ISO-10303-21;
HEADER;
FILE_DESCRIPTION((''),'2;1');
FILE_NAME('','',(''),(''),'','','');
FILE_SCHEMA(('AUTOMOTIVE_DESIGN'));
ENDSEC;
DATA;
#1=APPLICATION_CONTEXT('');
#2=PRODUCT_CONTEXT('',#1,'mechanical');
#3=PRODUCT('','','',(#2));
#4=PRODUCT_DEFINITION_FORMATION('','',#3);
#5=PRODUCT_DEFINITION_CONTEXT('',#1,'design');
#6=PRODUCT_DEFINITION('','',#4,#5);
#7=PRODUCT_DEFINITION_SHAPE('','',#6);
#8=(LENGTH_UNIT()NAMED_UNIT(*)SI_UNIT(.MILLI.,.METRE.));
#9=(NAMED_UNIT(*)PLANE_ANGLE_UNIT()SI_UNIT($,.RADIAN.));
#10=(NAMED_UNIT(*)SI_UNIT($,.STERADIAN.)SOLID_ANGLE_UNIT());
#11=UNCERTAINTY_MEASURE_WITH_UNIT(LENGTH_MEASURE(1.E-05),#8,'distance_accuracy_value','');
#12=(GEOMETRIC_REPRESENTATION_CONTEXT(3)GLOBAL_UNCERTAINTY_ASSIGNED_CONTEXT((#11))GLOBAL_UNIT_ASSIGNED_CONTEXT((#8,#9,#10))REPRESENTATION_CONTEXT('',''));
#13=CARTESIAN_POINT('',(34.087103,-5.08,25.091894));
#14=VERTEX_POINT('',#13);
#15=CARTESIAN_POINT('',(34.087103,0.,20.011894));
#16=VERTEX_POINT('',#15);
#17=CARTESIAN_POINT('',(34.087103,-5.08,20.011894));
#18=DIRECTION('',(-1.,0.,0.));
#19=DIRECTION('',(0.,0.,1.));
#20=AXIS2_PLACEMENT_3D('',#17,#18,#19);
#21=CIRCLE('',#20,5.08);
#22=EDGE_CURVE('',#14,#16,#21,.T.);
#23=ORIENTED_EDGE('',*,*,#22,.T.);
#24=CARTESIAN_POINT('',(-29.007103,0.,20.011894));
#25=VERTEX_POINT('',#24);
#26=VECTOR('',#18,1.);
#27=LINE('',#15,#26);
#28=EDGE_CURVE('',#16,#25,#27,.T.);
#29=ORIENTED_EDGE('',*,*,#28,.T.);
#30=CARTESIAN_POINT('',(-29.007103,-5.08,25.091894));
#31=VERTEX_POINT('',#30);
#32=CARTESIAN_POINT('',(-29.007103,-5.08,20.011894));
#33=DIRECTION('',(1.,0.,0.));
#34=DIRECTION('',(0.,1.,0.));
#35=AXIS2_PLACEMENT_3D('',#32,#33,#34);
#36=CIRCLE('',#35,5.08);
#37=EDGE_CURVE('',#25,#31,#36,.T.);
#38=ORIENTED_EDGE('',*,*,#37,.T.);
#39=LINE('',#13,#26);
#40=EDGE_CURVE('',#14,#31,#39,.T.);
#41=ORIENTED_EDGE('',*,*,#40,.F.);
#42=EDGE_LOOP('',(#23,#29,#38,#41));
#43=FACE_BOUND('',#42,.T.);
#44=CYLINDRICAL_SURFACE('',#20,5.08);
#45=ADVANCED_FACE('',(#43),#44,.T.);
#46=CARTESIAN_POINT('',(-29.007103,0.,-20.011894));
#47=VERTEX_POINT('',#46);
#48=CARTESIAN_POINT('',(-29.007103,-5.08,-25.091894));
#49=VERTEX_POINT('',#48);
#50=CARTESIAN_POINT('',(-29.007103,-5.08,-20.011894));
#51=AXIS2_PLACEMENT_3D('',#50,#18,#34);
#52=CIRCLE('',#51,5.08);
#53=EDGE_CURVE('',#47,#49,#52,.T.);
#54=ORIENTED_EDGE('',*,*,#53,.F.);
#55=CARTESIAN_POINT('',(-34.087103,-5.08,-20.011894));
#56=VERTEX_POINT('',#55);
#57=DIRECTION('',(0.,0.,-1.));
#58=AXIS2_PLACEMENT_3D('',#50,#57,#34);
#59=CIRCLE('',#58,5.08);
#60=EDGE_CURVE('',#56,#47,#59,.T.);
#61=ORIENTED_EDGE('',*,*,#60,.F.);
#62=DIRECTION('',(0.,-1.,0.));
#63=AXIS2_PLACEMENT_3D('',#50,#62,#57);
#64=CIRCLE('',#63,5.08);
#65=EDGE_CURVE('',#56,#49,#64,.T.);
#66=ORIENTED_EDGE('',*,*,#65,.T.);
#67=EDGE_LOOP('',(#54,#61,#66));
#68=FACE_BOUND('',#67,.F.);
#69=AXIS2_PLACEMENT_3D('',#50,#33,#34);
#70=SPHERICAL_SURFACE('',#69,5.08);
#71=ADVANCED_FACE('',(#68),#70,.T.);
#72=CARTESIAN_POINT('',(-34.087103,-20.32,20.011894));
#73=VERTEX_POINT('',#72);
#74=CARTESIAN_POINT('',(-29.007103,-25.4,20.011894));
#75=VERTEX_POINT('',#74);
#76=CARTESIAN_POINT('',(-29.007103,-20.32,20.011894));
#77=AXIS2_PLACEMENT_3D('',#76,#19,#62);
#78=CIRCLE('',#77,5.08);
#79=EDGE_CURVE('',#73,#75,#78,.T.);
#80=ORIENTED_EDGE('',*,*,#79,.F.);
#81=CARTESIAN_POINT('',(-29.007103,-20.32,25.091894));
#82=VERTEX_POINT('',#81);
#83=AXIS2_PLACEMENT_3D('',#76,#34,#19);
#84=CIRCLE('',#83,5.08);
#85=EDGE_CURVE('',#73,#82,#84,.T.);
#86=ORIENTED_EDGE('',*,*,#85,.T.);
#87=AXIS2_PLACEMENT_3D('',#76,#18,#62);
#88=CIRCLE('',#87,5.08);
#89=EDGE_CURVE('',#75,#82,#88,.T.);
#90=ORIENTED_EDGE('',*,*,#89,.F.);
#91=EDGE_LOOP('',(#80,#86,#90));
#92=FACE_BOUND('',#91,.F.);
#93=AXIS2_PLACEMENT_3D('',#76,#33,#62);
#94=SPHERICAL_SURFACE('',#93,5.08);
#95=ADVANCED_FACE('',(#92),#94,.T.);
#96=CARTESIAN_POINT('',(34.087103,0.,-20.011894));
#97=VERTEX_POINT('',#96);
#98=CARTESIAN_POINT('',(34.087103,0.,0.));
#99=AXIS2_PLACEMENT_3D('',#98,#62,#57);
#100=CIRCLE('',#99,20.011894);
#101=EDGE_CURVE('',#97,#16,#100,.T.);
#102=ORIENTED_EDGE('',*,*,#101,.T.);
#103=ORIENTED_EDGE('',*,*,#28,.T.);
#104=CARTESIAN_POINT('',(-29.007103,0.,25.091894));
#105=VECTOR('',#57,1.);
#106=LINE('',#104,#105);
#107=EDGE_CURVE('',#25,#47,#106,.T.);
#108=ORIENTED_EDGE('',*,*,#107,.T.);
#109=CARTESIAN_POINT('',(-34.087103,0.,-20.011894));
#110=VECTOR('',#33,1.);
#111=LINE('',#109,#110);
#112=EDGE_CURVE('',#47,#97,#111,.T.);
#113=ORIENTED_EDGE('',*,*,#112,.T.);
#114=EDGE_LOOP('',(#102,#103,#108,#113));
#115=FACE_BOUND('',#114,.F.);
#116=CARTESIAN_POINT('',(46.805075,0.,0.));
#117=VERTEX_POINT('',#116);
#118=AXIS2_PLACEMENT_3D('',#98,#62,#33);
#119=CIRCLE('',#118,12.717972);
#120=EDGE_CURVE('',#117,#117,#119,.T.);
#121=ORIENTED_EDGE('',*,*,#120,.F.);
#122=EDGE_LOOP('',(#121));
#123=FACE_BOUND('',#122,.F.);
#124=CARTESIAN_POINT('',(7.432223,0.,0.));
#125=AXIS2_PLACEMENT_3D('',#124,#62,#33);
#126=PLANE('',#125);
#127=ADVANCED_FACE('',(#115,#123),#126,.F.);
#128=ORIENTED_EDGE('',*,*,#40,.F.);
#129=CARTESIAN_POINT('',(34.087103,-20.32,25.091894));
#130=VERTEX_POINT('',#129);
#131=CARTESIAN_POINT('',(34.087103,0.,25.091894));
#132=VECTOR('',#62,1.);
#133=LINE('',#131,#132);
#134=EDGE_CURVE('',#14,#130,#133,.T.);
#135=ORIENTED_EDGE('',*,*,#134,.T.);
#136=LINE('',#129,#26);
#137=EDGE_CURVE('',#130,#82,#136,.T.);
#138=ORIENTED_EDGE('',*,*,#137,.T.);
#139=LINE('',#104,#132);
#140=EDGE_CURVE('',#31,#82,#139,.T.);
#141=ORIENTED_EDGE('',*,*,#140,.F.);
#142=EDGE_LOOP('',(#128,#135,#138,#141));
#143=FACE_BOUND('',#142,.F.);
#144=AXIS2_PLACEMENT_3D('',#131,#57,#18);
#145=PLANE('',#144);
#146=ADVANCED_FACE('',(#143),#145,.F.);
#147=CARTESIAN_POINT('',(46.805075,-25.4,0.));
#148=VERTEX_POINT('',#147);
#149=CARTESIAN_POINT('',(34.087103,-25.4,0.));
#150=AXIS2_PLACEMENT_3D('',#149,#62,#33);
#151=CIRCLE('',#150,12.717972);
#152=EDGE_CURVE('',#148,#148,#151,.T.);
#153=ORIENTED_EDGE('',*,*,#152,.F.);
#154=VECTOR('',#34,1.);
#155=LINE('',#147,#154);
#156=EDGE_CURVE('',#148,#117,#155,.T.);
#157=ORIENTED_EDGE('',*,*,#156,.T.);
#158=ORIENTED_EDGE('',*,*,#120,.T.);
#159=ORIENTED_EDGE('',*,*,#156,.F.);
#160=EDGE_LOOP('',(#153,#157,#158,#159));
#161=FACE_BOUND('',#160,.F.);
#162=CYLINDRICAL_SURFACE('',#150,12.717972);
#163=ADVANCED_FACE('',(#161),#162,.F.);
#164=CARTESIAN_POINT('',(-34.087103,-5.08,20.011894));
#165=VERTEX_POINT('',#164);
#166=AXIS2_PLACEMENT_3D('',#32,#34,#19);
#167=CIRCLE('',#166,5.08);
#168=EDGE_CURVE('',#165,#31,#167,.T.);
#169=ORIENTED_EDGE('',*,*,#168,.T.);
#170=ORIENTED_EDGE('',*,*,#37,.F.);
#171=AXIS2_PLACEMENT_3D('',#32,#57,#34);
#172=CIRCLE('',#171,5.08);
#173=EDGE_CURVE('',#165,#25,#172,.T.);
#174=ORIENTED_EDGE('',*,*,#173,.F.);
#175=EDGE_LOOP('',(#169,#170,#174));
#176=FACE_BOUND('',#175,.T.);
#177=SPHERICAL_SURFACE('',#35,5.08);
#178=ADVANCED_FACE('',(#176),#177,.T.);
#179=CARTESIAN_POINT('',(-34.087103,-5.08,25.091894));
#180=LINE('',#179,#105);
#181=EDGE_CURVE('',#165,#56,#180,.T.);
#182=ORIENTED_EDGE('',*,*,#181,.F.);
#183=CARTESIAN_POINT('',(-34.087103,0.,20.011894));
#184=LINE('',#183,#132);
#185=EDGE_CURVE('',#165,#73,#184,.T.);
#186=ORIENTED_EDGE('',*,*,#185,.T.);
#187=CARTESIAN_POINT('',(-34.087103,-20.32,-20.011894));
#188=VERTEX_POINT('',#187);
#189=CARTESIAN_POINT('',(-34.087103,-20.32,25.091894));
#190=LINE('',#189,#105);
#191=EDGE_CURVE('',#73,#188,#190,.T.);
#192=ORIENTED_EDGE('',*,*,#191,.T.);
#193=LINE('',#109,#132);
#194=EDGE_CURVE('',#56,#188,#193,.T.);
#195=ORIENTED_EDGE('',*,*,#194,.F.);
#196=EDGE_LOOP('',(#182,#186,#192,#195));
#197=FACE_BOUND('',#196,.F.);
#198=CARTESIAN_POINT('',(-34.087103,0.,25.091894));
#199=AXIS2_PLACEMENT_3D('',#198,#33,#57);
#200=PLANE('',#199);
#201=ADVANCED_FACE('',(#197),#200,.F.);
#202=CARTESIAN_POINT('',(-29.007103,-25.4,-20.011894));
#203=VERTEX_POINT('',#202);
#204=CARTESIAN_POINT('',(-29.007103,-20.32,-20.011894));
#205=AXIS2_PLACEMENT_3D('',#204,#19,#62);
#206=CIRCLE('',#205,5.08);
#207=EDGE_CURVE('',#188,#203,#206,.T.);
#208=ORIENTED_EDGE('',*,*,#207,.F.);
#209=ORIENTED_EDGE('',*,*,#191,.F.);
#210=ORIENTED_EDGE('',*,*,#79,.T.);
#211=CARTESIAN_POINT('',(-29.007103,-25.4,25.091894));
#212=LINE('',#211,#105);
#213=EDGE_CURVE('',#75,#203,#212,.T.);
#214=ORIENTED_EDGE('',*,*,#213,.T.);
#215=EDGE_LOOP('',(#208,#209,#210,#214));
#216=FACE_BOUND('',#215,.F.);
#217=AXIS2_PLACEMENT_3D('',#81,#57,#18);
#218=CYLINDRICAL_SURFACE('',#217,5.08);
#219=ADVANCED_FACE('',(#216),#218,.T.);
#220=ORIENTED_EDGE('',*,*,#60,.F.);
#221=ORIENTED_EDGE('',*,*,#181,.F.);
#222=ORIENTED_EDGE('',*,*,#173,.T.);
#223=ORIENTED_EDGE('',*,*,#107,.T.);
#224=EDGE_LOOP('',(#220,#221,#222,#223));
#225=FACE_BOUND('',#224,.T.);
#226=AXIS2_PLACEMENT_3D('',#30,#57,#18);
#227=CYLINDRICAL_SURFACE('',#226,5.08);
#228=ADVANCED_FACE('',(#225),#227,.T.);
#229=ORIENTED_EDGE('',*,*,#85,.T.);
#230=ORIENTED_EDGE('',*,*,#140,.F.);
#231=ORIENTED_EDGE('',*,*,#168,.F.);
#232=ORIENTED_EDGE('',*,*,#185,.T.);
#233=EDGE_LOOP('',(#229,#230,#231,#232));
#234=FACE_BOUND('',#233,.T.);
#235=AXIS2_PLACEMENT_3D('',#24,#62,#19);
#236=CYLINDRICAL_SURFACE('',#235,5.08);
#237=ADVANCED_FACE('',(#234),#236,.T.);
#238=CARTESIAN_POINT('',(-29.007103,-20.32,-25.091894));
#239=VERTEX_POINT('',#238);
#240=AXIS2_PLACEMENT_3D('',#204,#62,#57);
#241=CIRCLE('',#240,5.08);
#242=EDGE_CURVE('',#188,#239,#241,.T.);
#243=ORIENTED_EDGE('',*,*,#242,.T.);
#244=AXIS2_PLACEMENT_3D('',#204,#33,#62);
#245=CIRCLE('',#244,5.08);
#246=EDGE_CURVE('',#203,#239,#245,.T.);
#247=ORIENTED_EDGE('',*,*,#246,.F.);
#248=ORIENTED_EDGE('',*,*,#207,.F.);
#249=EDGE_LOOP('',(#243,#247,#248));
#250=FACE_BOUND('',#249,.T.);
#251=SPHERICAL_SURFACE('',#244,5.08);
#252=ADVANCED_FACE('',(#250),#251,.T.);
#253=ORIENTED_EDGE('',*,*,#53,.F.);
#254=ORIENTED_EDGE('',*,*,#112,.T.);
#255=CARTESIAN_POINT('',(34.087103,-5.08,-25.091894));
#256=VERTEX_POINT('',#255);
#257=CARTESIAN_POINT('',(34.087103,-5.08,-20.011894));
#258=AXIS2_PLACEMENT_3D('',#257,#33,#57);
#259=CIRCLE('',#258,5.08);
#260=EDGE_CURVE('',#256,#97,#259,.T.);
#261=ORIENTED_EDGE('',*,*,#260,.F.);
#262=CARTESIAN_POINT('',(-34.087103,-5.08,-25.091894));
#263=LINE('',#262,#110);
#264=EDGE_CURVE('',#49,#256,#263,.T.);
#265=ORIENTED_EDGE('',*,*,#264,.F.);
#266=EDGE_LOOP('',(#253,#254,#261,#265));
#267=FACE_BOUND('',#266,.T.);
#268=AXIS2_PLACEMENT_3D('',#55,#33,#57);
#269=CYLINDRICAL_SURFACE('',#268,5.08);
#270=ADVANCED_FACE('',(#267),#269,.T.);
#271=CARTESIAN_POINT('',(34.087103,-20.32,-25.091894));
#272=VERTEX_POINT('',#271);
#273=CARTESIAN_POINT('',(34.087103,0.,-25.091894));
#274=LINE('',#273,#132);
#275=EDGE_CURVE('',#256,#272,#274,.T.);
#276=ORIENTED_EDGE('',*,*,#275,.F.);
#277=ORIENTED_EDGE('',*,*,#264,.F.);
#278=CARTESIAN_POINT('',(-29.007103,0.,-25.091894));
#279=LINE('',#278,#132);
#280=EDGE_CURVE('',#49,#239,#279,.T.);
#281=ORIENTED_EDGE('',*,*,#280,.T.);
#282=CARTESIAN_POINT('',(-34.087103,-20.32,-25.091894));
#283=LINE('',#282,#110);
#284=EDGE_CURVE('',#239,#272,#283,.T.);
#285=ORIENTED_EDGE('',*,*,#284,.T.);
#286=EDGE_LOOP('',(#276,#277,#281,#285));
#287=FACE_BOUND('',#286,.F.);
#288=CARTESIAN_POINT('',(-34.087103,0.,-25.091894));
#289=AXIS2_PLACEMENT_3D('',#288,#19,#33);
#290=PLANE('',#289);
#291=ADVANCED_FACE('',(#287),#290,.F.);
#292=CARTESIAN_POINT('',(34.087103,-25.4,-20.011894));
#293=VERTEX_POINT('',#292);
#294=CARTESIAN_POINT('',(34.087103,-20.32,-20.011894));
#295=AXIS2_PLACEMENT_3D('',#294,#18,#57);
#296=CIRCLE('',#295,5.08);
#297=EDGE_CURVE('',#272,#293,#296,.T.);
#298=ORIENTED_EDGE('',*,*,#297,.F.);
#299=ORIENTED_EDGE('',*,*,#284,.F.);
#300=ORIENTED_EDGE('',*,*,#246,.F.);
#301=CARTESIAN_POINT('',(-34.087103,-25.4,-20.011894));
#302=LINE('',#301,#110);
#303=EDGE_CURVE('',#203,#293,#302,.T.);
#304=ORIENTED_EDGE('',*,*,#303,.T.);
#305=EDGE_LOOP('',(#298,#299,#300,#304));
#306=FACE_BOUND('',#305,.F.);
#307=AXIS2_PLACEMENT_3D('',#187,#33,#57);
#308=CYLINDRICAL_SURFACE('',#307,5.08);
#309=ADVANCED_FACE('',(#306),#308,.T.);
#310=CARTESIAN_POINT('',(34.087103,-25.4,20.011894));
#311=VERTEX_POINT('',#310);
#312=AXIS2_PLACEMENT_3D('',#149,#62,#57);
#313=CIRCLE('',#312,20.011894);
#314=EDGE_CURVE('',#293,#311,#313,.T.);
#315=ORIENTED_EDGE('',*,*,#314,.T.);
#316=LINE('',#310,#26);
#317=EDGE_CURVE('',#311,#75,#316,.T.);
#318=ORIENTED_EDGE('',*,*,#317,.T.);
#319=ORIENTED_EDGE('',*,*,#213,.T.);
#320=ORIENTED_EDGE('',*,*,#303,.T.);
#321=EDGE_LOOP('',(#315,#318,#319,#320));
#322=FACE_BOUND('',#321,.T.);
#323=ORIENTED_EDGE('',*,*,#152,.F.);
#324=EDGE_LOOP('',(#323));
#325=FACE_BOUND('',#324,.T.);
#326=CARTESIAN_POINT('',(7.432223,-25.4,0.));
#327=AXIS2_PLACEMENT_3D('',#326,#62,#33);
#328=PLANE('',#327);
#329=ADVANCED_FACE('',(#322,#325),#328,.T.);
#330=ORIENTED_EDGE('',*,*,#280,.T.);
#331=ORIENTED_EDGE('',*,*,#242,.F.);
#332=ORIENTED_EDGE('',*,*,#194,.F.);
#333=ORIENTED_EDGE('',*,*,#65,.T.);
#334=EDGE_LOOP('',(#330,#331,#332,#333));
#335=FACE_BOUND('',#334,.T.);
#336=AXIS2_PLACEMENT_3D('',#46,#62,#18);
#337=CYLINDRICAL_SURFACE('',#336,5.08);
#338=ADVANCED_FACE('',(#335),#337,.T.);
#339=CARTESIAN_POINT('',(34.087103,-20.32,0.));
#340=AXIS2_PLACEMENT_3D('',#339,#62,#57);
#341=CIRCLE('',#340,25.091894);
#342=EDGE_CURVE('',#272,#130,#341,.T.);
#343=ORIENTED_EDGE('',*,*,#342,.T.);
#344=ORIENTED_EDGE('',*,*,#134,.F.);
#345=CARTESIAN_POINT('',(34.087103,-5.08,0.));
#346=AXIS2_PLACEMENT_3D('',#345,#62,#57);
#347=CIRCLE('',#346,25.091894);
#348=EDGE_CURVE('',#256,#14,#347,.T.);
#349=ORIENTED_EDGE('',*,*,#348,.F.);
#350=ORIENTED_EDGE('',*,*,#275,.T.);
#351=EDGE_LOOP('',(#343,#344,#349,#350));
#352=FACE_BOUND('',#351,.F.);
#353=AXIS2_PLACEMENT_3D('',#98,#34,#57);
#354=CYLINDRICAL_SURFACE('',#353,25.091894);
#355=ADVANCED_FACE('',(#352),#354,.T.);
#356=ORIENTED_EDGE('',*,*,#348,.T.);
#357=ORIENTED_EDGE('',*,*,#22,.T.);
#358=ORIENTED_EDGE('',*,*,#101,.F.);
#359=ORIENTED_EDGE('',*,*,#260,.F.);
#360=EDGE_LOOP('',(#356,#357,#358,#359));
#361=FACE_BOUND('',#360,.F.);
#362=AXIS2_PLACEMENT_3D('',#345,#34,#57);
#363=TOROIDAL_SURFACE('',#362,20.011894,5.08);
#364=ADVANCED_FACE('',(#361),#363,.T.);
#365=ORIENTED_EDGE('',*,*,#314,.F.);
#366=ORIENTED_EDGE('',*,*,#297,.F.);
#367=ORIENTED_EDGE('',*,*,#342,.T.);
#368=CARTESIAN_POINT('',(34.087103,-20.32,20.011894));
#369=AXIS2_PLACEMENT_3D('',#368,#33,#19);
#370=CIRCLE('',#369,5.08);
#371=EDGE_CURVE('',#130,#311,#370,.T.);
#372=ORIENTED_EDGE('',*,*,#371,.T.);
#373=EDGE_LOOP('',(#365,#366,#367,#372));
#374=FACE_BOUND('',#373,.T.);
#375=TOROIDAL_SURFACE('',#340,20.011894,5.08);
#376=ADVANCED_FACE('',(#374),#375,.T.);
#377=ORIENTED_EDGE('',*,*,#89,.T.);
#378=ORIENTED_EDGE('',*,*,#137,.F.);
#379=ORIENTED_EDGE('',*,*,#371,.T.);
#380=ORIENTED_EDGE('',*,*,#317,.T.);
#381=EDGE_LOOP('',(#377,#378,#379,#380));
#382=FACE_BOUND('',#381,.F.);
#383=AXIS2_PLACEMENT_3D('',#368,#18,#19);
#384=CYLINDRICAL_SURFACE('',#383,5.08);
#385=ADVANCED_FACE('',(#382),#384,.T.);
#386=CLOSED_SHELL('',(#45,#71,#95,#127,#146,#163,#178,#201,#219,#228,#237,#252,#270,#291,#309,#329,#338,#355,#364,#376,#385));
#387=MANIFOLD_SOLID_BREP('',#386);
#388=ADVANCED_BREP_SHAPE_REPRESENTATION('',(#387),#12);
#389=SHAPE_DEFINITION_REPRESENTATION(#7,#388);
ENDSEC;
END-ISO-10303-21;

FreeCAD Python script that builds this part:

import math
import FreeCAD as App
import Part
import Sketcher
Q = App.Units.Quantity


def edges_at(feature, points):
    """Names of the edges that pass closest to the given points."""
    edges = feature.Shape.Edges
    near = lambda p: min(range(len(edges)), key=lambda i: edges[i].distToShape(Part.Vertex(*p))[0])
    return sorted({f"Edge{near(p) + 1}" for p in points})

doc = App.newDocument("Part")
body = doc.addObject("PartDesign::Body", "Body")

sketch1 = body.newObject("Sketcher::SketchObject", "Sketch")
sketch1.AttachmentSupport = (doc.getObject("XZ_Plane"), [""])
sketch1.MapMode = "FlatFace"
sketch1.addGeometry([
    Part.ArcOfCircle(Part.Circle(App.Vector(34, 0, 0), App.Vector(0, 0, 1), 25), math.radians(-90), math.radians(90)),
    Part.LineSegment(App.Vector(34, 25, 0), App.Vector(-34, 25, 0)),
    Part.LineSegment(App.Vector(-34, 25, 0), App.Vector(-34, -25, 0)),
    Part.LineSegment(App.Vector(-34, -25, 0), App.Vector(34, -25, 0)),
], False)
sketch1.addConstraint([
    Sketcher.Constraint("Tangent", 0, 2, 1, 1),
    Sketcher.Constraint("Coincident", 1, 2, 2, 1),
    Sketcher.Constraint("Coincident", 2, 2, 3, 1),
    Sketcher.Constraint("Tangent", 3, 2, 0, 1),
    Sketcher.Constraint("Horizontal", 1),
    Sketcher.Constraint("Vertical", 2),
    Sketcher.Constraint("Horizontal", 3),
    Sketcher.Constraint("Symmetric", 0, 2, 2, 2, -1, 1),
    Sketcher.Constraint("Radius", 0, 25.091894),
    Sketcher.Constraint("DistanceX", 1, 2, 1, 1, 68.174206),
])
pad1 = body.newObject("PartDesign::Pad", "Pad")
pad1.Profile = sketch1
pad1.Length = Q("1 in")
doc.recompute()

fillet = body.newObject("PartDesign::Fillet", "Fillet")
fillet.Base = (pad1, edges_at(pad1, [
    (0, -25.4, 25.092),
    (-34.087, -25.4, 0),
    (0, 0, -25.092),
    (-34.087, 0, 0),
    (-34.087, -12.7, -25.092),
    (-34.087, -12.7, 25.092),
]))
fillet.Radius = Q("0.2 in")

sketch2 = body.newObject("Sketcher::SketchObject", "Sketch001")
sketch2.AttachmentSupport = (doc.getObject("XZ_Plane"), [""])
sketch2.MapMode = "FlatFace"
sketch2.AttachmentOffset = App.Placement(App.Vector(0, 0, 1 * 25.4), App.Rotation())
sketch2.addGeometry(Part.Circle(App.Vector(34, 0, 0), App.Vector(0, 0, 1), 13), False)
sketch2.addConstraint([
    Sketcher.Constraint("PointOnObject", 0, 3, -1),
    Sketcher.Constraint("Diameter", 0, 25.435944),
    Sketcher.Constraint("DistanceX", -1, 1, 0, 3, 34.087103),
])
pocket1 = body.newObject("PartDesign::Pocket", "Pocket")
pocket1.Profile = sketch2
pocket1.Type = "ThroughAll"

doc.recompute()
